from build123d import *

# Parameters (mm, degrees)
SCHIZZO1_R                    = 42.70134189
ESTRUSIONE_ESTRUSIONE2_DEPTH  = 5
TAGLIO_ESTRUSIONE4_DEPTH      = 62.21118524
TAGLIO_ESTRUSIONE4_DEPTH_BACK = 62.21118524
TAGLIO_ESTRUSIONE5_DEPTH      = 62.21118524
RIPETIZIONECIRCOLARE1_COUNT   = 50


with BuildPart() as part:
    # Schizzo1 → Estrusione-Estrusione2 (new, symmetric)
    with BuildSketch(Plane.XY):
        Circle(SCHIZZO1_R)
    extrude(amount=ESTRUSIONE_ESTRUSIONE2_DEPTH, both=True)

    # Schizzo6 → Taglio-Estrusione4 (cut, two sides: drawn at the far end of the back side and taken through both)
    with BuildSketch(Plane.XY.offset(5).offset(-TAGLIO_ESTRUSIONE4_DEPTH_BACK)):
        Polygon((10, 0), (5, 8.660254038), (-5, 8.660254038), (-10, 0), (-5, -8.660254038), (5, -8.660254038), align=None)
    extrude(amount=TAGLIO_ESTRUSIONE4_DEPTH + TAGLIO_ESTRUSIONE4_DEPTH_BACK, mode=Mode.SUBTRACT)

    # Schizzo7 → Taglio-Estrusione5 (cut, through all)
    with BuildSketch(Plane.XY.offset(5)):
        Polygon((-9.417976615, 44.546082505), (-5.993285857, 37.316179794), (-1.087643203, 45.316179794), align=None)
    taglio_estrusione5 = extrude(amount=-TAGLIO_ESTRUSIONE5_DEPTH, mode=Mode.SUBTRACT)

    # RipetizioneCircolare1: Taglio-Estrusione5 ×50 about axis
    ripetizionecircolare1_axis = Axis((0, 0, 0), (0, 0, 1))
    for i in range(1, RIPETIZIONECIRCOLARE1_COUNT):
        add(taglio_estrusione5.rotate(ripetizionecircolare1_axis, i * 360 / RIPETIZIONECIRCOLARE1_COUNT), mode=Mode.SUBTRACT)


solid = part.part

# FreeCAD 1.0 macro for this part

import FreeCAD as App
import Part
import Sketcher
from FreeCAD import Vector
Q = App.Units.Quantity


def add_polygon(sketch, points):
    """Adds a closed chain of lines whose ends are joined by coincident constraints."""
    first, n = sketch.GeometryCount, len(points)
    for a, b in zip(points, points[1:] + points[:1]):
        sketch.addGeometry(Part.LineSegment(App.Vector(*a, 0), App.Vector(*b, 0)), False)
    for i in range(n):
        sketch.addConstraint(Sketcher.Constraint("Coincident", first + i, 2, first + (i + 1) % n, 1))

doc = App.newDocument("Part")
params = doc.addObject("Spreadsheet::Sheet", "Params")
for row, (alias, value) in enumerate([
    ("pad1_length", "10 mm"),
    ("sketch2_width", "10 mm"),
    ("sketch2_length", "10 mm"),
    ("sketch3_length", "8 mm"),
], start=1):
    params.set(f"A{row}", alias)
    params.set(f"B{row}", "=" + value)
    params.setAlias(f"B{row}", alias)

body = doc.addObject("PartDesign::Body", "Body")

sketch1 = body.newObject("Sketcher::SketchObject", "Sketch")
sketch1.AttachmentSupport = (doc.getObject("XY_Plane"), [""])
sketch1.MapMode = "FlatFace"
sketch1.addGeometry(Part.Circle(Vector(0, 0, 0), Vector(0, 0, 1), 43), False)
sketch1.addConstraint([
    Sketcher.Constraint("Coincident", 0, 3, -1, 1),
    Sketcher.Constraint("Diameter", 0, Q("85.402684 mm")),
])
pad1 = body.newObject("PartDesign::Pad", "Pad")
pad1.Profile = sketch1
pad1.setExpression("Length", "Params.pad1_length")
pad1.Midplane = True

sketch2 = body.newObject("Sketcher::SketchObject", "Sketch001")
sketch2.AttachmentSupport = (doc.getObject("XY_Plane"), [""])
sketch2.MapMode = "FlatFace"
sketch2.AttachmentOffset = App.Placement(Vector(0, 0, 5), App.Rotation())
add_polygon(sketch2, [(10, 0), (5, 9), (-5, 9), (-10, 0), (-5, -9), (5, -9)])
sketch2.addConstraint([
    Sketcher.Constraint("Horizontal", 1),
    Sketcher.Constraint("Horizontal", 4),
    Sketcher.Constraint("Symmetric", 0, 2, 3, 2, -1, 1),
    Sketcher.Constraint("Symmetric", 2, 2, 5, 2, -1, 1),
    Sketcher.Constraint("PointOnObject", 2, 2, -1),
    Sketcher.Constraint("Parallel", 2, 5),
    Sketcher.Constraint("Vertical", 1, 2, 3, 2),
    Sketcher.Constraint("DistanceX", 1, 2, 1, 1, Q("10 mm")),
    Sketcher.Constraint("Angle", 0, Q("120 deg")),
    Sketcher.Constraint("Distance", 0, Q("10 mm")),
])
sketch2.setExpression("Constraints[13]", "Params.sketch2_width")
sketch2.setExpression("Constraints[15]", "Params.sketch2_length")
pocket1 = body.newObject("PartDesign::Pocket", "Pocket")
pocket1.Profile = sketch2
pocket1.Type = "ThroughAll"
pocket1.Midplane = True

sketch3 = body.newObject("Sketcher::SketchObject", "Sketch002")
sketch3.AttachmentSupport = (doc.getObject("XY_Plane"), [""])
sketch3.MapMode = "FlatFace"
sketch3.AttachmentOffset = App.Placement(Vector(0, 0, 5), App.Rotation())
add_polygon(sketch3, [(-9, 45), (-6, 37), (-1, 45)])
sketch3.addConstraint([
    Sketcher.Constraint("Distance", 0, Q("8 mm")),
    Sketcher.Constraint("DistanceY", 0, 2, 1, 2, Q("8 mm")),
    Sketcher.Constraint("DistanceY", -1, 1, 0, 2, Q("37.31618 mm")),
    Sketcher.Constraint("DistanceX", 2, 2, 0, 2, Q("3.424691 mm")),
    Sketcher.Constraint("Distance", 1, Q("9.384313 mm")),
    Sketcher.Constraint("DistanceX", 0, 2, -1, 1, Q("5.993286 mm")),
])
sketch3.setExpression("Constraints[3]", "Params.sketch3_length")
pocket2 = body.newObject("PartDesign::Pocket", "Pocket001")
pocket2.Profile = sketch3
pocket2.Type = "ThroughAll"
doc.recompute()

polarpattern = body.newObject("PartDesign::PolarPattern", "PolarPattern")
polarpattern.Originals = [pocket2]
polarpattern.Axis = (doc.getObject("Z_Axis"), [""])
polarpattern.Angle = 360
polarpattern.Occurrences = 50
body.Tip = polarpattern

doc.recompute()
